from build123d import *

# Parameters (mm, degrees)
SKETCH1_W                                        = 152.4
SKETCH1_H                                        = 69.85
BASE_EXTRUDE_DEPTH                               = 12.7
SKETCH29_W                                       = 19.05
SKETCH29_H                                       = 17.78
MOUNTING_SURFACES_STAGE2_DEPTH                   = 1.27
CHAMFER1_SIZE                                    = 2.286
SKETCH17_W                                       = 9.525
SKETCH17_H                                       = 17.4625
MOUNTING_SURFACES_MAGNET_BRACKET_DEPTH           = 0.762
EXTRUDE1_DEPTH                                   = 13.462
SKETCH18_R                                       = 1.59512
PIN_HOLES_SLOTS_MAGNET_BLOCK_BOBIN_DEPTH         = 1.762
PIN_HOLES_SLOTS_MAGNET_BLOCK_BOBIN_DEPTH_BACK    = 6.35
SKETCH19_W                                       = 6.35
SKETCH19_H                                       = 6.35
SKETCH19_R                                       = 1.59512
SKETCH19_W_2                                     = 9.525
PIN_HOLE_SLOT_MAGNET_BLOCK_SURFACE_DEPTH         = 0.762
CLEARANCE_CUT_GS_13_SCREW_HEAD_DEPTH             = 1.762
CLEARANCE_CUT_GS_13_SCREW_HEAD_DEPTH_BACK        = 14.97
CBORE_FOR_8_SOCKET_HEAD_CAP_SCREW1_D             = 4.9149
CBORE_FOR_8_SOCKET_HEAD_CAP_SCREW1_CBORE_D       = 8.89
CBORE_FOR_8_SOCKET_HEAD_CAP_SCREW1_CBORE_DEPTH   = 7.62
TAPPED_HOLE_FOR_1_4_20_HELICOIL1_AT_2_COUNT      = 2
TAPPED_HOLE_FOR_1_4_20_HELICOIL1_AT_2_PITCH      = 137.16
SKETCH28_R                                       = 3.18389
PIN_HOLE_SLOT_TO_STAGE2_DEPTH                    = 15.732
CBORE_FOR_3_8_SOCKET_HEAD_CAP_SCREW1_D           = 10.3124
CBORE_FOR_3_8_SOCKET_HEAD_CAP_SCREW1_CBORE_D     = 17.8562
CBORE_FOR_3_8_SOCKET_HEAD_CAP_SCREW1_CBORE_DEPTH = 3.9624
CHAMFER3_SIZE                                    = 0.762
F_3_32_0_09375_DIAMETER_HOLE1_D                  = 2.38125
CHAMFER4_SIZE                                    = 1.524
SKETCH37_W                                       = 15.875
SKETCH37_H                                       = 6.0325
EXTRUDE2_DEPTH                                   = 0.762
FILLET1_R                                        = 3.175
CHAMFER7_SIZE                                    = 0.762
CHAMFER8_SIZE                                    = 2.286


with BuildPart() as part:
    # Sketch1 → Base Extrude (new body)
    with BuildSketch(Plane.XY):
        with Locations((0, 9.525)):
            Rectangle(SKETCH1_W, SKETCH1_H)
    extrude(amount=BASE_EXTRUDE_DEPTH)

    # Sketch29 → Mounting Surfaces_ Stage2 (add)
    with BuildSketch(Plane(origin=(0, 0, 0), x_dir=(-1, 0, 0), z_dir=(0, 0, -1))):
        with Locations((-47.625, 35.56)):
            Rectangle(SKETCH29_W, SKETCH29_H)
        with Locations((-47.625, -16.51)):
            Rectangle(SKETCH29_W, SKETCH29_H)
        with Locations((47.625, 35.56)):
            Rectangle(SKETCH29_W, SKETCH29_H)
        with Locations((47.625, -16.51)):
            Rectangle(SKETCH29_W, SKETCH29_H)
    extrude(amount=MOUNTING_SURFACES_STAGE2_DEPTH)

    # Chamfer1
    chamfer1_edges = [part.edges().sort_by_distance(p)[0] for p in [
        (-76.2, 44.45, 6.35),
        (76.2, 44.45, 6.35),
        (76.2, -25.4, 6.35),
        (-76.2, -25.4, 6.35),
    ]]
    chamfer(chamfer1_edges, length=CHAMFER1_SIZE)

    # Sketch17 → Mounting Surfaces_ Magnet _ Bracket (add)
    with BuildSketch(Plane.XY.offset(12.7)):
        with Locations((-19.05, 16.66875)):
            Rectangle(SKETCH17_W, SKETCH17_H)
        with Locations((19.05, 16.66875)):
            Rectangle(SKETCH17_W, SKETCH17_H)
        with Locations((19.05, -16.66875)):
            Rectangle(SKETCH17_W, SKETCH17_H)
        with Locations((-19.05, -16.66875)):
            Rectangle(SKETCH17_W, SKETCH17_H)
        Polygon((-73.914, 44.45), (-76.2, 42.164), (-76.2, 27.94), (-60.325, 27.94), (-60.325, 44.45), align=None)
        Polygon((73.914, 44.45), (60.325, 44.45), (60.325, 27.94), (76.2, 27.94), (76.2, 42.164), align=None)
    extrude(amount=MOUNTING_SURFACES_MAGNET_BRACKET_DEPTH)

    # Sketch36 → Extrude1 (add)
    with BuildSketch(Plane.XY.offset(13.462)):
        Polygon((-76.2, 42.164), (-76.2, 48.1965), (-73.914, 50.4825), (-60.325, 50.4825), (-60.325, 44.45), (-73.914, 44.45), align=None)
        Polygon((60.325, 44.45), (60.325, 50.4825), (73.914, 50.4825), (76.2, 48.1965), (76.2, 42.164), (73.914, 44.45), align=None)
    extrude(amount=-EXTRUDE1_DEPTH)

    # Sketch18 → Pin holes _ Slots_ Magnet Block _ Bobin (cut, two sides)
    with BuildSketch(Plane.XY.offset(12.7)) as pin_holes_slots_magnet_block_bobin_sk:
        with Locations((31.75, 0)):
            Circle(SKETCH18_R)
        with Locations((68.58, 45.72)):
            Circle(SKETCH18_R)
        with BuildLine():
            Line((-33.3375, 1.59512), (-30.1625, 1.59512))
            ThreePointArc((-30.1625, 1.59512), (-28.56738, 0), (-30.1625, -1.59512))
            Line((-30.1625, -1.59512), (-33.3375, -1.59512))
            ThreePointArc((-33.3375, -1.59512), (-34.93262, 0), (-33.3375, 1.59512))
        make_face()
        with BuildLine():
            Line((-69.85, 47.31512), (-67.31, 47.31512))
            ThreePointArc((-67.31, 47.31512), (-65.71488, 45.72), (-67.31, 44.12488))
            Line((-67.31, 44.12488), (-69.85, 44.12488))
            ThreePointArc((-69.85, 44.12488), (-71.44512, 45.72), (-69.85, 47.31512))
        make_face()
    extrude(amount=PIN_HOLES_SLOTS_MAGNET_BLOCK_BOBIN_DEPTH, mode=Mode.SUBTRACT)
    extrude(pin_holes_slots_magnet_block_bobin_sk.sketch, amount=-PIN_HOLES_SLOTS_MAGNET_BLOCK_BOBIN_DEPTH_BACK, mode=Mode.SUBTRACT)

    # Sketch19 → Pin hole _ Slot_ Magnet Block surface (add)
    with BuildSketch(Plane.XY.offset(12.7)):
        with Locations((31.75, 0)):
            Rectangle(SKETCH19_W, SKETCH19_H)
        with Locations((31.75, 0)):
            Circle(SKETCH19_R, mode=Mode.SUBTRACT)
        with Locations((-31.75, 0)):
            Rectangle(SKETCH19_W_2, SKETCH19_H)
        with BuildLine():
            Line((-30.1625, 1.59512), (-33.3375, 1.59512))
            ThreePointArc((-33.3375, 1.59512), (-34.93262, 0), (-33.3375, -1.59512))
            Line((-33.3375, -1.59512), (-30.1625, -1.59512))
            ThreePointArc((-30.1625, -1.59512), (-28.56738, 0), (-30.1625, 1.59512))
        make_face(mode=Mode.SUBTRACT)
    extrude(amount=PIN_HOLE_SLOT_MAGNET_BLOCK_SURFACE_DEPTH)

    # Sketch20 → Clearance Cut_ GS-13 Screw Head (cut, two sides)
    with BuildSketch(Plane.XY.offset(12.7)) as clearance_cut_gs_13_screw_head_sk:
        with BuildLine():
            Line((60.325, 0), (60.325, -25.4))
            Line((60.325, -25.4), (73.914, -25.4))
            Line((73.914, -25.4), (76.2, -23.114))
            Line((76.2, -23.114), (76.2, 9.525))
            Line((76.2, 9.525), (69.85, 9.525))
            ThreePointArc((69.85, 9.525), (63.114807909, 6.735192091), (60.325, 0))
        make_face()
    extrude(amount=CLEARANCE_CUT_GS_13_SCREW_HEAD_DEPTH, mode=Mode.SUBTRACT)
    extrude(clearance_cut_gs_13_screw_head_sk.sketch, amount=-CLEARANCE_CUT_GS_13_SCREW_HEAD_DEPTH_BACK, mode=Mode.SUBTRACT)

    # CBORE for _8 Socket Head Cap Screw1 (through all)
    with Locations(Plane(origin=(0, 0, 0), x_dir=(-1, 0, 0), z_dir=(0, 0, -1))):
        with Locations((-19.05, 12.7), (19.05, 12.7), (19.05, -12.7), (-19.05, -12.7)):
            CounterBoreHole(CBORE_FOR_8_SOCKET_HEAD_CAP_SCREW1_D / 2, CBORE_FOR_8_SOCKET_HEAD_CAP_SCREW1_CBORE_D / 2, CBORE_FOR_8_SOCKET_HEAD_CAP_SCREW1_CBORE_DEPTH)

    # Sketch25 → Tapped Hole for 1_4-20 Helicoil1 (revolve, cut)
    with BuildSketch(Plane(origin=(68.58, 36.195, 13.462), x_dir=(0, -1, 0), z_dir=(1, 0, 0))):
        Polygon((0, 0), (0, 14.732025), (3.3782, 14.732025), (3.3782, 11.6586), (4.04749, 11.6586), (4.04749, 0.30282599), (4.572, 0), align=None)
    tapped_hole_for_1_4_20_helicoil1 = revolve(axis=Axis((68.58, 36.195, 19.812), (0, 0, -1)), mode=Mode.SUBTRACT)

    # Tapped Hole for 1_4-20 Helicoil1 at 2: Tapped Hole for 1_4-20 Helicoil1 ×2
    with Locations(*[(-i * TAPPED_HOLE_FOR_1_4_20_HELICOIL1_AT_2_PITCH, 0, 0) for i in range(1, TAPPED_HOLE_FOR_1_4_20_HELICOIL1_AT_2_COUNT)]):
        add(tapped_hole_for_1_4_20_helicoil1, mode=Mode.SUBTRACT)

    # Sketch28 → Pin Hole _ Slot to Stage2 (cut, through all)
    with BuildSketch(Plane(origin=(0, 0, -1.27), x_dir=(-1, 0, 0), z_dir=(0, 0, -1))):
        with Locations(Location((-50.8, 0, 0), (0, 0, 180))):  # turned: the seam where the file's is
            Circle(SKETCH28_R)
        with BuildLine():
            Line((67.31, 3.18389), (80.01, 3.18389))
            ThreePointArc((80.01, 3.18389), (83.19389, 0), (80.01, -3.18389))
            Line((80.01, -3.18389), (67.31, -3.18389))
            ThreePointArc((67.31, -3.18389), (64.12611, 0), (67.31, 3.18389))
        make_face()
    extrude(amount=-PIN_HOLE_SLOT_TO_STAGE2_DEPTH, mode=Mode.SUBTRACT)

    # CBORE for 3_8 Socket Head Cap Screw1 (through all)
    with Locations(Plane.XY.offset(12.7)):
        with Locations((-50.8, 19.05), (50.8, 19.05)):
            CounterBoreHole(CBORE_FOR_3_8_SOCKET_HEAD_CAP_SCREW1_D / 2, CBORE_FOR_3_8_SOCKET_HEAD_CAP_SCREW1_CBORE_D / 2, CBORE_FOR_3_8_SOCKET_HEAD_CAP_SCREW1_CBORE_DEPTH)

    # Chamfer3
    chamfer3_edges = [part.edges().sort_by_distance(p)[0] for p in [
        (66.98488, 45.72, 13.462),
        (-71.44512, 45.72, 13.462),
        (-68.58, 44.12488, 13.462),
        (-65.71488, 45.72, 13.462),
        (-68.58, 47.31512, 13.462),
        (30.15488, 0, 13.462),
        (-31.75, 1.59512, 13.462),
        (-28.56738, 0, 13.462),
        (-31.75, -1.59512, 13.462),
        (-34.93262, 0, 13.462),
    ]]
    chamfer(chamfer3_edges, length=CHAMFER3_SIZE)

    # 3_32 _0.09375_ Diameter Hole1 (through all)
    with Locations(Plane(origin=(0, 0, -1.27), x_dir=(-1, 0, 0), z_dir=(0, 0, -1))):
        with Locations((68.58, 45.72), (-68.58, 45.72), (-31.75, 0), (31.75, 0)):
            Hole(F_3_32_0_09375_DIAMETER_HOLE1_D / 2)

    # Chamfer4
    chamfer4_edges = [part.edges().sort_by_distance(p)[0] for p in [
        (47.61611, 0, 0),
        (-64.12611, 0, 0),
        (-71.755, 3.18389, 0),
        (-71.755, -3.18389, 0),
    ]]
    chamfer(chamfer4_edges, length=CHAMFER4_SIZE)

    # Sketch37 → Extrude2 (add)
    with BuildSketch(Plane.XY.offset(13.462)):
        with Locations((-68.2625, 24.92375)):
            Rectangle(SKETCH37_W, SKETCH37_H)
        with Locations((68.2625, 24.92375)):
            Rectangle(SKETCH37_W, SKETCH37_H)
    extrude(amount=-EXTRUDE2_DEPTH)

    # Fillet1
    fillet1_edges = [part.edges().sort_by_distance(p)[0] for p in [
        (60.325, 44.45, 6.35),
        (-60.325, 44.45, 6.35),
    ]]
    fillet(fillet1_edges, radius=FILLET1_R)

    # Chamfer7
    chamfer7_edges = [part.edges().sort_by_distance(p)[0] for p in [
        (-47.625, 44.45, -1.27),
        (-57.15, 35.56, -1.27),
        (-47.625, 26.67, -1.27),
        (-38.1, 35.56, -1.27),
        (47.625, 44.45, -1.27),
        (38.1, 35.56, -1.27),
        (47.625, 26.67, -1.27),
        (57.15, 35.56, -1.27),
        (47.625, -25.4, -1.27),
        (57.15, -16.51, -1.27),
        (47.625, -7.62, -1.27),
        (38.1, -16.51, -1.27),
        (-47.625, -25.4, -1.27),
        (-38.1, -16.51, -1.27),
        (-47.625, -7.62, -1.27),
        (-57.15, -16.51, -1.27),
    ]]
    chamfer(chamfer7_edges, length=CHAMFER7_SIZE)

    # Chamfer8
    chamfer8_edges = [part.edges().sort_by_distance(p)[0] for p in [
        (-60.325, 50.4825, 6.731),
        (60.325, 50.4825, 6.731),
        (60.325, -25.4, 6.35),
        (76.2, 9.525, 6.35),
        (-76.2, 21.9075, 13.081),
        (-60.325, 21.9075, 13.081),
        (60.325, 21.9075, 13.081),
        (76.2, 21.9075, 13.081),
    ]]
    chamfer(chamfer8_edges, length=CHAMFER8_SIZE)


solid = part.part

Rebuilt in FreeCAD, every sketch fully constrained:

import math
import FreeCAD as App
import Part
import Sketcher

V = App.Vector
Q = App.Units.Quantity


def edges_at(feature, points):
    """Names of the edges that pass closest to the given points."""
    edges = feature.Shape.Edges
    near = lambda p: min(range(len(edges)), key=lambda i: edges[i].distToShape(Part.Vertex(*p))[0])
    return sorted({f"Edge{near(p) + 1}" for p in points})

doc = App.newDocument("Part")
body = doc.addObject("PartDesign::Body", "Body")

# Sketch on XY plane
sketch1 = body.newObject("Sketcher::SketchObject", "Sketch")
sketch1.AttachmentSupport = (doc.getObject("XY_Plane"), [""])
sketch1.MapMode = "FlatFace"
sketch1.addGeometry([
    Part.LineSegment(V(-76, 44, 0), V(-76, -25, 0)),
    Part.LineSegment(V(-76, -25, 0), V(76, -25, 0)),
    Part.LineSegment(V(76, -25, 0), V(76, 44, 0)),
    Part.LineSegment(V(76, 44, 0), V(-76, 44, 0)),
], False)
sketch1.addConstraint([
    Sketcher.Constraint("Coincident", 0, 2, 1, 1),
    Sketcher.Constraint("Coincident", 1, 2, 2, 1),
    Sketcher.Constraint("Coincident", 2, 2, 3, 1),
    Sketcher.Constraint("Coincident", 3, 2, 0, 1),
    Sketcher.Constraint("Vertical", 0),
    Sketcher.Constraint("Horizontal", 1),
    Sketcher.Constraint("Vertical", 2),
    Sketcher.Constraint("Horizontal", 3),
    Sketcher.Constraint("DistanceX", 1, 1, 1, 2, Q("6 in")),
    Sketcher.Constraint("DistanceX", 0, 2, -1, 1, Q("3 in")),
    Sketcher.Constraint("DistanceY", 0, 2, -1, 1, Q("1 in")),
    Sketcher.Constraint("DistanceY", 0, 2, 0, 1, Q("2.75 in")),
])
pad1 = body.newObject("PartDesign::Pad", "Pad")
pad1.Profile = sketch1
pad1.Length = Q("0.5 in")

# Sketch on XY plane
sketch2 = body.newObject("Sketcher::SketchObject", "Sketch001")
sketch2.AttachmentSupport = (doc.getObject("XY_Plane"), [""])
sketch2.MapMode = "FlatFace"
sketch2.addGeometry([
    Part.LineSegment(V(57, 44, 0), V(57, 27, 0)),  # 0
    Part.LineSegment(V(57, 27, 0), V(38, 27, 0)),  # 1
    Part.LineSegment(V(38, 27, 0), V(38, 44, 0)),  # 2
    Part.LineSegment(V(38, 44, 0), V(57, 44, 0)),  # 3
    Part.LineSegment(V(57, -8, 0), V(57, -25, 0)),  # 4
    Part.LineSegment(V(57, -25, 0), V(38, -25, 0)),  # 5
    Part.LineSegment(V(38, -25, 0), V(38, -8, 0)),  # 6
    Part.LineSegment(V(38, -8, 0), V(57, -8, 0)),  # 7
    Part.LineSegment(V(-38, 44, 0), V(-38, 27, 0)),  # 8
    Part.LineSegment(V(-38, 27, 0), V(-57, 27, 0)),  # 9
    Part.LineSegment(V(-57, 27, 0), V(-57, 44, 0)),  # 10
    Part.LineSegment(V(-57, 44, 0), V(-38, 44, 0)),  # 11
    Part.LineSegment(V(-38, -8, 0), V(-38, -25, 0)),  # 12
    Part.LineSegment(V(-38, -25, 0), V(-57, -25, 0)),  # 13
    Part.LineSegment(V(-57, -25, 0), V(-57, -8, 0)),  # 14
    Part.LineSegment(V(-57, -8, 0), V(-38, -8, 0)),  # 15
], False)
sketch2.addConstraint([
    Sketcher.Constraint("Coincident", 0, 2, 1, 1),
    Sketcher.Constraint("Coincident", 1, 2, 2, 1),
    Sketcher.Constraint("Coincident", 2, 2, 3, 1),
    Sketcher.Constraint("Coincident", 3, 2, 0, 1),
    Sketcher.Constraint("Coincident", 4, 2, 5, 1),
    Sketcher.Constraint("Coincident", 5, 2, 6, 1),
    Sketcher.Constraint("Coincident", 6, 2, 7, 1),
    Sketcher.Constraint("Coincident", 7, 2, 4, 1),
    Sketcher.Constraint("Coincident", 8, 2, 9, 1),
    Sketcher.Constraint("Coincident", 9, 2, 10, 1),
    Sketcher.Constraint("Coincident", 10, 2, 11, 1),
    Sketcher.Constraint("Coincident", 11, 2, 8, 1),
    Sketcher.Constraint("Coincident", 12, 2, 13, 1),
    Sketcher.Constraint("Coincident", 13, 2, 14, 1),
    Sketcher.Constraint("Coincident", 14, 2, 15, 1),
    Sketcher.Constraint("Coincident", 15, 2, 12, 1),
    Sketcher.Constraint("Vertical", 0),
    Sketcher.Constraint("Horizontal", 1),
    Sketcher.Constraint("Vertical", 2),
    Sketcher.Constraint("Horizontal", 3),
    Sketcher.Constraint("Vertical", 4),
    Sketcher.Constraint("Horizontal", 5),
    Sketcher.Constraint("Vertical", 6),
    Sketcher.Constraint("Horizontal", 7),
    Sketcher.Constraint("Vertical", 8),
    Sketcher.Constraint("Horizontal", 9),
    Sketcher.Constraint("Vertical", 10),
    Sketcher.Constraint("Horizontal", 11),
    Sketcher.Constraint("Vertical", 12),
    Sketcher.Constraint("Horizontal", 13),
    Sketcher.Constraint("Vertical", 14),
    Sketcher.Constraint("Horizontal", 15),
    Sketcher.Constraint("Symmetric", 1, 2, 8, 2, -2),
    Sketcher.Constraint("Symmetric", 3, 2, 10, 2, -2),
    Sketcher.Constraint("Symmetric", 5, 2, 12, 2, -2),
    Sketcher.Constraint("Symmetric", 7, 2, 14, 2, -2),
    Sketcher.Constraint("Vertical", 3, 2, 4, 2),
    Sketcher.Constraint("Vertical", 2, 2, 5, 2),
    Sketcher.Constraint("Equal", 2, 4),
    Sketcher.Constraint("DistanceY", 0, 2, 0, 1, Q("0.7 in")),
    Sketcher.Constraint("DistanceY", 4, 2, -1, 1, Q("1 in")),
    Sketcher.Constraint("DistanceX", 8, 2, 1, 2, Q("3 in")),
    Sketcher.Constraint("DistanceX", 1, 2, 1, 1, Q("0.75 in")),
    Sketcher.Constraint("DistanceY", -1, 1, 0, 2, Q("1.05 in")),
])
pad2 = body.newObject("PartDesign::Pad", "Pad001")
pad2.Profile = sketch2
pad2.Length = Q("0.05 in")
pad2.Reversed = True
doc.recompute()

chamfer = body.newObject("PartDesign::Chamfer", "Chamfer")
chamfer.Base = (pad2, edges_at(pad2, [
    (-76.2, 44.45, 6.35),
    (76.2, 44.45, 6.35),
    (76.2, -25.4, 6.35),
    (-76.2, -25.4, 6.35),
]))
chamfer.Size = Q("0.09 in")

# Sketch on XY plane
sketch3 = body.newObject("Sketcher::SketchObject", "Sketch002")
sketch3.AttachmentSupport = (doc.getObject("XY_Plane"), [""])
sketch3.MapMode = "FlatFace"
sketch3.AttachmentOffset = App.Placement(V(0, 0, 0.5 * 25.4), App.Rotation())
sketch3.addGeometry([
    Part.LineSegment(V(-23.8, 25.4, 0), V(-23.8, 7.9, 0)),  # 0
    Part.LineSegment(V(-23.8, 7.9, 0), V(-14.3, 7.9, 0)),  # 1
    Part.LineSegment(V(-14.3, 7.9, 0), V(-14.3, 25.4, 0)),  # 2
    Part.LineSegment(V(-14.3, 25.4, 0), V(-23.8, 25.4, 0)),  # 3
    Part.LineSegment(V(14.3, 25.4, 0), V(14.3, 7.9, 0)),  # 4
    Part.LineSegment(V(14.3, 7.9, 0), V(23.8, 7.9, 0)),  # 5
    Part.LineSegment(V(23.8, 7.9, 0), V(23.8, 25.4, 0)),  # 6
    Part.LineSegment(V(23.8, 25.4, 0), V(14.3, 25.4, 0)),  # 7
    Part.LineSegment(V(14.3, -7.9, 0), V(14.3, -25.4, 0)),  # 8
    Part.LineSegment(V(14.3, -25.4, 0), V(23.8, -25.4, 0)),  # 9
    Part.LineSegment(V(23.8, -25.4, 0), V(23.8, -7.9, 0)),  # 10
    Part.LineSegment(V(23.8, -7.9, 0), V(14.3, -7.9, 0)),  # 11
    Part.LineSegment(V(-23.8, -7.9, 0), V(-23.8, -25.4, 0)),  # 12
    Part.LineSegment(V(-23.8, -25.4, 0), V(-14.3, -25.4, 0)),  # 13
    Part.LineSegment(V(-14.3, -25.4, 0), V(-14.3, -7.9, 0)),  # 14
    Part.LineSegment(V(-14.3, -7.9, 0), V(-23.8, -7.9, 0)),  # 15
    Part.LineSegment(V(-73.9, 44.5, 0), V(-76.2, 42.2, 0)),  # 16
    Part.LineSegment(V(-76.2, 42.2, 0), V(-76.2, 27.9, 0)),  # 17
    Part.LineSegment(V(-76.2, 27.9, 0), V(-60.3, 27.9, 0)),  # 18
    Part.LineSegment(V(-60.3, 27.9, 0), V(-60.3, 44.5, 0)),  # 19
    Part.LineSegment(V(-60.3, 44.5, 0), V(-73.9, 44.5, 0)),  # 20
    Part.LineSegment(V(73.9, 44.5, 0), V(60.3, 44.5, 0)),  # 21
    Part.LineSegment(V(60.3, 44.5, 0), V(60.3, 27.9, 0)),  # 22
    Part.LineSegment(V(60.3, 27.9, 0), V(76.2, 27.9, 0)),  # 23
    Part.LineSegment(V(76.2, 27.9, 0), V(76.2, 42.2, 0)),  # 24
    Part.LineSegment(V(76.2, 42.2, 0), V(73.9, 44.5, 0)),  # 25
], False)
sketch3.addConstraint([
    Sketcher.Constraint("Coincident", 0, 2, 1, 1),
    Sketcher.Constraint("Coincident", 1, 2, 2, 1),
    Sketcher.Constraint("Coincident", 2, 2, 3, 1),
    Sketcher.Constraint("Coincident", 3, 2, 0, 1),
    Sketcher.Constraint("Coincident", 4, 2, 5, 1),
    Sketcher.Constraint("Coincident", 5, 2, 6, 1),
    Sketcher.Constraint("Coincident", 6, 2, 7, 1),
    Sketcher.Constraint("Coincident", 7, 2, 4, 1),
    Sketcher.Constraint("Coincident", 8, 2, 9, 1),
    Sketcher.Constraint("Coincident", 9, 2, 10, 1),
    Sketcher.Constraint("Coincident", 10, 2, 11, 1),
    Sketcher.Constraint("Coincident", 11, 2, 8, 1),
    Sketcher.Constraint("Coincident", 12, 2, 13, 1),
    Sketcher.Constraint("Coincident", 13, 2, 14, 1),
    Sketcher.Constraint("Coincident", 14, 2, 15, 1),
    Sketcher.Constraint("Coincident", 15, 2, 12, 1),
    Sketcher.Constraint("Coincident", 16, 2, 17, 1),
    Sketcher.Constraint("Coincident", 17, 2, 18, 1),
    Sketcher.Constraint("Coincident", 18, 2, 19, 1),
    Sketcher.Constraint("Coincident", 19, 2, 20, 1),
    Sketcher.Constraint("Coincident", 20, 2, 16, 1),
    Sketcher.Constraint("Coincident", 21, 2, 22, 1),
    Sketcher.Constraint("Coincident", 22, 2, 23, 1),
    Sketcher.Constraint("Coincident", 23, 2, 24, 1),
    Sketcher.Constraint("Coincident", 24, 2, 25, 1),
    Sketcher.Constraint("Coincident", 25, 2, 21, 1),
    Sketcher.Constraint("Vertical", 0),
    Sketcher.Constraint("Horizontal", 1),
    Sketcher.Constraint("Vertical", 2),
    Sketcher.Constraint("Horizontal", 3),
    Sketcher.Constraint("Vertical", 4),
    Sketcher.Constraint("Horizontal", 5),
    Sketcher.Constraint("Vertical", 6),
    Sketcher.Constraint("Horizontal", 7),
    Sketcher.Constraint("Vertical", 8),
    Sketcher.Constraint("Horizontal", 9),
    Sketcher.Constraint("Vertical", 10),
    Sketcher.Constraint("Horizontal", 11),
    Sketcher.Constraint("Vertical", 12),
    Sketcher.Constraint("Horizontal", 13),
    Sketcher.Constraint("Vertical", 14),
    Sketcher.Constraint("Horizontal", 15),
    Sketcher.Constraint("Vertical", 17),
    Sketcher.Constraint("Horizontal", 18),
    Sketcher.Constraint("Vertical", 19),
    Sketcher.Constraint("Horizontal", 20),
    Sketcher.Constraint("Horizontal", 21),
    Sketcher.Constraint("Vertical", 22),
    Sketcher.Constraint("Horizontal", 23),
    Sketcher.Constraint("Vertical", 24),
    Sketcher.Constraint("Symmetric", 2, 2, 8, 2, -1, 1),
    Sketcher.Constraint("Symmetric", 0, 2, 10, 2, -1, 1),
    Sketcher.Constraint("Symmetric", 6, 2, 12, 2, -1, 1),
    Sketcher.Constraint("Symmetric", 4, 2, 14, 2, -1, 1),
    Sketcher.Constraint("Symmetric", 1, 2, 4, 2, -2),
    Sketcher.Constraint("Symmetric", 3, 2, 6, 2, -2),
    Sketcher.Constraint("Symmetric", 19, 2, 21, 2, -2),
    Sketcher.Constraint("Symmetric", 17, 2, 23, 2, -2),
    Sketcher.Constraint("Perpendicular", 16, 25),
    Sketcher.Constraint("Horizontal", 16, 2, 24, 2),
    Sketcher.Constraint("Equal", 20, 21),
    Sketcher.Constraint("DistanceY", -1, 1, 2, 2, Q("1 in")),
    Sketcher.Constraint("DistanceX", 16, 2, -1, 1, Q("3 in")),
    Sketcher.Constraint("DistanceY", 17, 2, 17, 1, Q("0.56 in")),
    Sketcher.Constraint("DistanceY", 19, 1, 19, 2, Q("0.65 in")),
    Sketcher.Constraint("DistanceY", -1, 1, 17, 2, Q("1.1 in")),
    Sketcher.Constraint("DistanceX", 0, 2, 4, 2, Q("1.5 in")),
    Sketcher.Constraint("DistanceX", 1, 1, 1, 2, Q("0.375 in")),
    Sketcher.Constraint("DistanceX", 18, 1, 18, 2, Q("0.625 in")),
    Sketcher.Constraint("DistanceY", 0, 2, 0, 1, Q("0.6875 in")),
])
pad3 = body.newObject("PartDesign::Pad", "Pad002")
pad3.Profile = sketch3
pad3.Length = Q("0.03 in")

# Sketch on XY plane
sketch4 = body.newObject("Sketcher::SketchObject", "Sketch003")
sketch4.AttachmentSupport = (doc.getObject("XY_Plane"), [""])
sketch4.MapMode = "FlatFace"
sketch4.AttachmentOffset = App.Placement(V(0, 0, 0.53 * 25.4), App.Rotation())
sketch4.addGeometry([
    Part.LineSegment(V(-76.2, 48.2, 0), V(-76.2, 42.2, 0)),  # 0
    Part.LineSegment(V(-76.2, 42.2, 0), V(-73.9, 44.5, 0)),  # 1
    Part.LineSegment(V(-73.9, 44.5, 0), V(-60.3, 44.5, 0)),  # 2
    Part.LineSegment(V(-60.3, 44.5, 0), V(-60.3, 50.5, 0)),  # 3
    Part.LineSegment(V(-60.3, 50.5, 0), V(-73.9, 50.5, 0)),  # 4
    Part.LineSegment(V(-73.9, 50.5, 0), V(-76.2, 48.2, 0)),  # 5
    Part.LineSegment(V(60.3, 50.5, 0), V(60.3, 44.5, 0)),  # 6
    Part.LineSegment(V(60.3, 44.5, 0), V(73.9, 44.5, 0)),  # 7
    Part.LineSegment(V(73.9, 44.5, 0), V(76.2, 42.2, 0)),  # 8
    Part.LineSegment(V(76.2, 42.2, 0), V(76.2, 48.2, 0)),  # 9
    Part.LineSegment(V(76.2, 48.2, 0), V(73.9, 50.5, 0)),  # 10
    Part.LineSegment(V(73.9, 50.5, 0), V(60.3, 50.5, 0)),  # 11
], False)
sketch4.addConstraint([
    Sketcher.Constraint("Coincident", 0, 2, 1, 1),
    Sketcher.Constraint("Coincident", 1, 2, 2, 1),
    Sketcher.Constraint("Coincident", 2, 2, 3, 1),
    Sketcher.Constraint("Coincident", 3, 2, 4, 1),
    Sketcher.Constraint("Coincident", 4, 2, 5, 1),
    Sketcher.Constraint("Coincident", 5, 2, 0, 1),
    Sketcher.Constraint("Coincident", 6, 2, 7, 1),
    Sketcher.Constraint("Coincident", 7, 2, 8, 1),
    Sketcher.Constraint("Coincident", 8, 2, 9, 1),
    Sketcher.Constraint("Coincident", 9, 2, 10, 1),
    Sketcher.Constraint("Coincident", 10, 2, 11, 1),
    Sketcher.Constraint("Coincident", 11, 2, 6, 1),
    Sketcher.Constraint("Vertical", 0),
    Sketcher.Constraint("Horizontal", 2),
    Sketcher.Constraint("Vertical", 3),
    Sketcher.Constraint("Horizontal", 4),
    Sketcher.Constraint("Vertical", 6),
    Sketcher.Constraint("Horizontal", 7),
    Sketcher.Constraint("Vertical", 9),
    Sketcher.Constraint("Horizontal", 11),
    Sketcher.Constraint("Symmetric", 2, 2, 6, 2, -2),
    Sketcher.Constraint("Symmetric", 0, 2, 8, 2, -2),
    Sketcher.Constraint("Symmetric", 4, 2, 10, 2, -2),
    Sketcher.Constraint("Parallel", 1, 5),
    Sketcher.Constraint("Perpendicular", 5, 8),
    Sketcher.Constraint("Parallel", 8, 10),
    Sketcher.Constraint("Horizontal", 5, 2, 9, 2),
    Sketcher.Constraint("Vertical", 1, 2, 4, 2),
    Sketcher.Constraint("DistanceX", 0, 2, -1, 1, Q("3 in")),
    Sketcher.Constraint("DistanceX", 2, 1, 2, 2, Q("0.535 in")),
    Sketcher.Constraint("DistanceY", -1, 1, 0, 2, Q("1.66 in")),
    Sketcher.Constraint("DistanceX", 1, 2, -1, 1, Q("2.91 in")),
    Sketcher.Constraint("DistanceY", 0, 2, 0, 1, Q("0.2375 in")),
])
pad4 = body.newObject("PartDesign::Pad", "Pad003")
pad4.Profile = sketch4
pad4.Length = Q("0.53 in")
pad4.Reversed = True

# Sketch on XY plane
sketch5 = body.newObject("Sketcher::SketchObject", "Sketch004")
sketch5.AttachmentSupport = (doc.getObject("XY_Plane"), [""])
sketch5.MapMode = "FlatFace"
sketch5.AttachmentOffset = App.Placement(V(0, 0, 0.5 * 25.4), App.Rotation())
sketch5.addGeometry([
    Part.Circle(V(31.8, 0, 0), V(0, 0, 1), 1.6),  # 0
    Part.Circle(V(68.6, 45.7, 0), V(0, 0, 1), 1.6),  # 1
    Part.LineSegment(V(-30.2, 1.6, 0), V(-33.3, 1.6, 0)),  # 2
    Part.ArcOfCircle(Part.Circle(V(-33.3, 0, 0), V(0, 0, 1), 1.6), math.radians(90), math.radians(270)),  # 3
    Part.LineSegment(V(-33.3, -1.6, 0), V(-30.2, -1.6, 0)),  # 4
    Part.ArcOfCircle(Part.Circle(V(-30.2, 0, 0), V(0, 0, 1), 1.6), math.radians(-90), math.radians(90)),  # 5
    Part.LineSegment(V(-67.3, 47.3, 0), V(-69.8, 47.3, 0)),  # 6
    Part.ArcOfCircle(Part.Circle(V(-69.8, 45.7, 0), V(0, 0, 1), 1.6), math.radians(90), math.radians(270)),  # 7
    Part.LineSegment(V(-69.8, 44.1, 0), V(-67.3, 44.1, 0)),  # 8
    Part.ArcOfCircle(Part.Circle(V(-67.3, 45.7, 0), V(0, 0, 1), 1.6), math.radians(-90), math.radians(90)),  # 9
], False)
sketch5.addConstraint([
    Sketcher.Constraint("Tangent", 2, 2, 3, 1),
    Sketcher.Constraint("Tangent", 3, 2, 4, 1),
    Sketcher.Constraint("Tangent", 4, 2, 5, 1),
    Sketcher.Constraint("Tangent", 5, 2, 2, 1),
    Sketcher.Constraint("Tangent", 6, 2, 7, 1),
    Sketcher.Constraint("Tangent", 7, 2, 8, 1),
    Sketcher.Constraint("Tangent", 8, 2, 9, 1),
    Sketcher.Constraint("Tangent", 9, 2, 6, 1),
    Sketcher.Constraint("Horizontal", 2),
    Sketcher.Constraint("Horizontal", 4),
    Sketcher.Constraint("Horizontal", 6),
    Sketcher.Constraint("Horizontal", 8),
    Sketcher.Constraint("Equal", 0, 1),
    Sketcher.Constraint("Equal", 1, 3),
    Sketcher.Constraint("Equal", 5, 7),
    Sketcher.Constraint("PointOnObject", 0, 3, -1),
    Sketcher.Constraint("PointOnObject", 3, 3, -1),
    Sketcher.Constraint("Horizontal", 1, 3, 7, 3),
    Sketcher.Constraint("DistanceX", 6, 2, 6, 1, Q("0.1 in")),
    Sketcher.Constraint("DistanceX", 7, 3, 0, 3, Q("4 in")),
    Sketcher.Constraint("Diameter", 0, Q("0.1256 in")),
    Sketcher.Constraint("DistanceX", -1, 1, 1, 3, Q("2.7 in")),
    Sketcher.Constraint("DistanceY", -1, 1, 1, 3, Q("1.8 in")),
    Sketcher.Constraint("DistanceX", 2, 2, 2, 1, Q("0.125 in")),
    Sketcher.Constraint("DistanceX", -1, 1, 0, 3, Q("1.25 in")),
    Sketcher.Constraint("DistanceX", 3, 3, -1, 1, Q("1.3125 in")),
])
pocket1 = body.newObject("PartDesign::Pocket", "Pocket")
pocket1.Profile = sketch5
pocket1.Type = "TwoLengths"
pocket1.Length = 1.762
pocket1.Length2 = Q("0.25 in")
pocket1.Reversed = True

# Sketch on XY plane
sketch6 = body.newObject("Sketcher::SketchObject", "Sketch005")
sketch6.AttachmentSupport = (doc.getObject("XY_Plane"), [""])
sketch6.MapMode = "FlatFace"
sketch6.AttachmentOffset = App.Placement(V(0, 0, 0.5 * 25.4), App.Rotation())
sketch6.addGeometry([
    Part.LineSegment(V(28.6, 3.2, 0), V(28.6, -3.2, 0)),  # 0
    Part.LineSegment(V(28.6, -3.2, 0), V(34.9, -3.2, 0)),  # 1
    Part.LineSegment(V(34.9, -3.2, 0), V(34.9, 3.2, 0)),  # 2
    Part.LineSegment(V(34.9, 3.2, 0), V(28.6, 3.2, 0)),  # 3
    Part.Circle(V(31.8, 0, 0), V(0, 0, 1), 1.6),  # 4
    Part.LineSegment(V(-36.5, 3.2, 0), V(-36.5, -3.2, 0)),  # 5
    Part.LineSegment(V(-36.5, -3.2, 0), V(-27, -3.2, 0)),  # 6
    Part.LineSegment(V(-27, -3.2, 0), V(-27, 3.2, 0)),  # 7
    Part.LineSegment(V(-27, 3.2, 0), V(-36.5, 3.2, 0)),  # 8
    Part.LineSegment(V(-33.3, 1.6, 0), V(-30.2, 1.6, 0)),  # 9
    Part.ArcOfCircle(Part.Circle(V(-30.2, 0, 0), V(0, 0, 1), 1.6), math.radians(-90), math.radians(90)),  # 10
    Part.LineSegment(V(-30.2, -1.6, 0), V(-33.3, -1.6, 0)),  # 11
    Part.ArcOfCircle(Part.Circle(V(-33.3, 0, 0), V(0, 0, 1), 1.6), math.radians(90), math.radians(270)),  # 12
], False)
sketch6.addConstraint([
    Sketcher.Constraint("Coincident", 0, 2, 1, 1),
    Sketcher.Constraint("Coincident", 1, 2, 2, 1),
    Sketcher.Constraint("Coincident", 2, 2, 3, 1),
    Sketcher.Constraint("Coincident", 3, 2, 0, 1),
    Sketcher.Constraint("Coincident", 5, 2, 6, 1),
    Sketcher.Constraint("Coincident", 6, 2, 7, 1),
    Sketcher.Constraint("Coincident", 7, 2, 8, 1),
    Sketcher.Constraint("Coincident", 8, 2, 5, 1),
    Sketcher.Constraint("Tangent", 9, 2, 10, 2),
    Sketcher.Constraint("Tangent", 10, 1, 11, 1),
    Sketcher.Constraint("Tangent", 11, 2, 12, 2),
    Sketcher.Constraint("Tangent", 12, 1, 9, 1),
    Sketcher.Constraint("Vertical", 0),
    Sketcher.Constraint("Horizontal", 1),
    Sketcher.Constraint("Vertical", 2),
    Sketcher.Constraint("Horizontal", 3),
    Sketcher.Constraint("Vertical", 5),
    Sketcher.Constraint("Horizontal", 6),
    Sketcher.Constraint("Vertical", 7),
    Sketcher.Constraint("Horizontal", 8),
    Sketcher.Constraint("Horizontal", 9),
    Sketcher.Constraint("Horizontal", 11),
    Sketcher.Constraint("Equal", 4, 10),
    Sketcher.Constraint("PointOnObject", 4, 3, -1),
    Sketcher.Constraint("PointOnObject", 10, 3, -1),
    Sketcher.Constraint("Horizontal", 1, 2, 5, 2),
    Sketcher.Constraint("Horizontal", 3, 2, 7, 2),
    Sketcher.Constraint("Equal", 3, 0),
    Sketcher.Constraint("Diameter", 4, Q("0.1256 in")),
    Sketcher.Constraint("DistanceX", 1, 1, 1, 2, Q("0.25 in")),
    Sketcher.Constraint("DistanceX", 6, 1, 6, 2, Q("0.375 in")),
    Sketcher.Constraint("DistanceX", 9, 1, 9, 2, Q("0.125 in")),
    Sketcher.Constraint("DistanceX", -1, 1, 4, 3, Q("1.25 in")),
    Sketcher.Constraint("DistanceX", 5, 2, 10, 3, Q("0.25 in")),
    Sketcher.Constraint("DistanceX", 10, 3, -1, 1, Q("1.1875 in")),
    Sketcher.Constraint("DistanceX", -1, 1, 0, 2, Q("1.125 in")),
    Sketcher.Constraint("DistanceY", 0, 2, -1, 1, Q("0.125 in")),
])
pad5 = body.newObject("PartDesign::Pad", "Pad004")
pad5.Profile = sketch6
pad5.Length = Q("0.03 in")

# Sketch on XY plane
sketch7 = body.newObject("Sketcher::SketchObject", "Sketch006")
sketch7.AttachmentSupport = (doc.getObject("XY_Plane"), [""])
sketch7.MapMode = "FlatFace"
sketch7.AttachmentOffset = App.Placement(V(0, 0, 0.5 * 25.4), App.Rotation())
sketch7.addGeometry([
    Part.LineSegment(V(60.3, 0, 0), V(60.3, -25.4, 0)),  # 0
    Part.LineSegment(V(60.3, -25.4, 0), V(73.9, -25.4, 0)),  # 1
    Part.LineSegment(V(73.9, -25.4, 0), V(76.2, -23.1, 0)),  # 2
    Part.LineSegment(V(76.2, -23.1, 0), V(76.2, 9.5, 0)),  # 3
    Part.LineSegment(V(76.2, 9.5, 0), V(69.8, 9.5, 0)),  # 4
    Part.ArcOfCircle(Part.Circle(V(69.8, 0, 0), V(0, 0, 1), 9.5), math.radians(90), math.radians(180)),  # 5
], False)
sketch7.addConstraint([
    Sketcher.Constraint("Coincident", 0, 2, 1, 1),
    Sketcher.Constraint("Coincident", 1, 2, 2, 1),
    Sketcher.Constraint("Coincident", 2, 2, 3, 1),
    Sketcher.Constraint("Coincident", 3, 2, 4, 1),
    Sketcher.Constraint("Tangent", 4, 2, 5, 1),
    Sketcher.Constraint("Tangent", 5, 2, 0, 1),
    Sketcher.Constraint("Vertical", 0),
    Sketcher.Constraint("Horizontal", 1),
    Sketcher.Constraint("Vertical", 3),
    Sketcher.Constraint("Horizontal", 4),
    Sketcher.Constraint("PointOnObject", 5, 3, -1),
    Sketcher.Constraint("DistanceY", 0, 2, 0, 1, Q("1 in")),
    Sketcher.Constraint("DistanceX", -1, 1, 2, 2, Q("3 in")),
    Sketcher.Constraint("Angle", 2, Q("45 deg")),
    Sketcher.Constraint("Radius", 5, Q("0.375 in")),
    Sketcher.Constraint("DistanceX", 4, 2, 4, 1, Q("0.25 in")),
    Sketcher.Constraint("DistanceX", 1, 1, 1, 2, Q("0.535 in")),
])
pocket2 = body.newObject("PartDesign::Pocket", "Pocket001")
pocket2.Profile = sketch7
pocket2.Type = "ThroughAll"
pocket2.Midplane = True

# Sketch on XY plane
sketch8 = body.newObject("Sketcher::SketchObject", "Sketch007")
sketch8.AttachmentSupport = (doc.getObject("XY_Plane"), [""])
sketch8.MapMode = "FlatFace"
sketch8.addGeometry([
    Part.Circle(V(19.1, 12.7, 0), V(0, 0, 1), 2.5),
    Part.Circle(V(-19.1, 12.7, 0), V(0, 0, 1), 2.5),
    Part.Circle(V(-19.1, -12.7, 0), V(0, 0, 1), 2.5),
    Part.Circle(V(19.1, -12.7, 0), V(0, 0, 1), 2.5),
], False)
sketch8.addConstraint([
    Sketcher.Constraint("Equal", 0, 1),
    Sketcher.Constraint("Equal", 1, 2),
    Sketcher.Constraint("Equal", 2, 3),
    Sketcher.Constraint("Symmetric", 0, 3, 2, 3, -1, 1),
    Sketcher.Constraint("Symmetric", 1, 3, 3, 3, -1, 1),
    Sketcher.Constraint("Symmetric", 0, 3, 1, 3, -2),
    Sketcher.Constraint("DistanceY", 2, 3, 1, 3, Q("1 in")),
    Sketcher.Constraint("Diameter", 0, Q("0.1935 in")),
    Sketcher.Constraint("DistanceX", 1, 3, 0, 3, Q("1.5 in")),
])
doc.recompute()
hole = body.newObject("PartDesign::Hole", "Hole")
hole.Profile = sketch8
hole.ThreadType = "None"
hole.Diameter = Q("0.1935 in")
hole.DepthType = "ThroughAll"
hole.HoleCutType = "Counterbore"
hole.HoleCutDiameter = Q("0.35 in")
hole.HoleCutDepth = Q("0.3 in")
hole.Reversed = True

# Sketch on YZ plane
sketch9 = body.newObject("Sketcher::SketchObject", "Sketch008")
sketch9.AttachmentSupport = (doc.getObject("YZ_Plane"), [""])
sketch9.MapMode = "FlatFace"
sketch9.AttachmentOffset = App.Placement(V(0, 0, 2.7 * 25.4), App.Rotation())
sketch9.addGeometry([
    Part.LineSegment(V(36.2, -1.3, 0), V(36.2, 13.5, 0)),  # 0
    Part.LineSegment(V(36.2, 13.5, 0), V(31.6, 13.5, 0)),  # 1
    Part.LineSegment(V(31.6, 13.5, 0), V(32.1, 13.2, 0)),  # 2
    Part.LineSegment(V(32.1, 13.2, 0), V(32.1, 1.8, 0)),  # 3
    Part.LineSegment(V(32.1, 1.8, 0), V(32.8, 1.8, 0)),  # 4
    Part.LineSegment(V(32.8, 1.8, 0), V(32.8, -1.3, 0)),  # 5
    Part.LineSegment(V(32.8, -1.3, 0), V(36.2, -1.3, 0)),  # 6
], False)
sketch9.addGeometry(Part.LineSegment(V(36.2, 13.5, 0), V(36.2, -1.3, 0)), True)  # axis
sketch9.addConstraint([
    Sketcher.Constraint("Coincident", 0, 2, 1, 1),
    Sketcher.Constraint("Coincident", 1, 2, 2, 1),
    Sketcher.Constraint("Coincident", 2, 2, 3, 1),
    Sketcher.Constraint("Coincident", 3, 2, 4, 1),
    Sketcher.Constraint("Coincident", 4, 2, 5, 1),
    Sketcher.Constraint("Coincident", 5, 2, 6, 1),
    Sketcher.Constraint("Coincident", 6, 2, 0, 1),
    Sketcher.Constraint("Vertical", 0),
    Sketcher.Constraint("Horizontal", 1),
    Sketcher.Constraint("Vertical", 3),
    Sketcher.Constraint("Horizontal", 4),
    Sketcher.Constraint("Vertical", 5),
    Sketcher.Constraint("Horizontal", 6),
    Sketcher.Constraint("Vertical", 7),
    Sketcher.Constraint("Coincident", 7, 1, 0, 2),
    Sketcher.Constraint("Horizontal", 5, 2, 7, 2),
    Sketcher.Constraint("Angle", 2, Q("-30 deg")),
    Sketcher.Constraint("DistanceX", 1, 2, 1, 1, Q("0.18 in")),
    Sketcher.Constraint("DistanceX", 6, 1, 6, 2, Q("0.133 in")),
    Sketcher.Constraint("DistanceY", -1, 1, 0, 2, Q("0.53 in")),
    Sketcher.Constraint("DistanceX", -1, 1, 0, 2, Q("1.425 in")),
    Sketcher.Constraint("DistanceY", -1, 1, 3, 2, Q("0.071 in")),
    Sketcher.Constraint("DistanceX", 4, 1, 4, 2, 0.66929),
    Sketcher.Constraint("DistanceY", 5, 2, 2, 2, 14.429199),
])
groove = body.newObject("PartDesign::Groove", "Groove")
groove.Profile = sketch9
groove.ReferenceAxis = (sketch9, ["Axis0"])
groove.Angle = 360
doc.recompute()

linearpattern = body.newObject("PartDesign::LinearPattern", "LinearPattern")
linearpattern.Originals = [groove]
linearpattern.Direction = (doc.getObject("X_Axis"), [""])
linearpattern.Mode = "offset"
linearpattern.Offset = Q("5.4 in")
linearpattern.Occurrences = 2
linearpattern.Reversed = True
body.Tip = linearpattern

# Sketch on XY plane
sketch10 = body.newObject("Sketcher::SketchObject", "Sketch009")
sketch10.AttachmentSupport = (doc.getObject("XY_Plane"), [""])
sketch10.MapMode = "FlatFace"
sketch10.AttachmentOffset = App.Placement(V(0, 0, -0.05 * 25.4), App.Rotation())
sketch10.addGeometry([
    Part.Circle(V(50.8, 0, 0), V(0, 0, 1), 3.2),  # 0
    Part.LineSegment(V(-80, 3.2, 0), V(-67.3, 3.2, 0)),  # 1
    Part.ArcOfCircle(Part.Circle(V(-67.3, 0, 0), V(0, 0, 1), 3.2), math.radians(-90), math.radians(90)),  # 2
    Part.LineSegment(V(-67.3, -3.2, 0), V(-80, -3.2, 0)),  # 3
    Part.ArcOfCircle(Part.Circle(V(-80, 0, 0), V(0, 0, 1), 3.2), math.radians(90), math.radians(270)),  # 4
], False)
sketch10.addConstraint([
    Sketcher.Constraint("Tangent", 1, 2, 2, 2),
    Sketcher.Constraint("Tangent", 2, 1, 3, 1),
    Sketcher.Constraint("Tangent", 3, 2, 4, 2),
    Sketcher.Constraint("Tangent", 4, 1, 1, 1),
    Sketcher.Constraint("Horizontal", 1),
    Sketcher.Constraint("Horizontal", 3),
    Sketcher.Constraint("Equal", 0, 2),
    Sketcher.Constraint("PointOnObject", 0, 3, -1),
    Sketcher.Constraint("PointOnObject", 2, 3, -1),
    Sketcher.Constraint("DistanceX", 1, 1, 1, 2, Q("0.5 in")),
    Sketcher.Constraint("DistanceX", -1, 1, 0, 3, Q("2 in")),
    Sketcher.Constraint("Diameter", 0, Q("0.2507 in")),
    Sketcher.Constraint("DistanceX", 2, 3, -1, 1, Q("2.65 in")),
])
pocket3 = body.newObject("PartDesign::Pocket", "Pocket002")
pocket3.Profile = sketch10
pocket3.Type = "ThroughAll"
pocket3.Reversed = True

# Sketch on XY plane
sketch11 = body.newObject("Sketcher::SketchObject", "Sketch010")
sketch11.AttachmentSupport = (doc.getObject("XY_Plane"), [""])
sketch11.MapMode = "FlatFace"
sketch11.AttachmentOffset = App.Placement(V(0, 0, 0.5 * 25.4), App.Rotation())
sketch11.addGeometry([
    Part.Circle(V(-51, 19, 0), V(0, 0, 1), 5),
    Part.Circle(V(51, 19, 0), V(0, 0, 1), 5),
], False)
sketch11.addConstraint([
    Sketcher.Constraint("Equal", 0, 1),
    Sketcher.Constraint("Symmetric", 0, 3, 1, 3, -2),
    Sketcher.Constraint("Diameter", 0, Q("0.406 in")),
    Sketcher.Constraint("DistanceX", 0, 3, -1, 1, Q("2 in")),
    Sketcher.Constraint("DistanceY", -1, 1, 0, 3, Q("0.75 in")),
])
doc.recompute()
hole2 = body.newObject("PartDesign::Hole", "Hole001")
hole2.Profile = sketch11
hole2.ThreadType = "None"
hole2.Diameter = Q("0.406 in")
hole2.DepthType = "ThroughAll"
hole2.HoleCutType = "Counterbore"
hole2.HoleCutDiameter = Q("0.703 in")
hole2.HoleCutDepth = Q("0.156 in")
doc.recompute()

chamfer2 = body.newObject("PartDesign::Chamfer", "Chamfer001")
chamfer2.Base = (hole2, edges_at(hole2, [
    (66.985, 45.72, 13.462),
    (-71.445, 45.72, 13.462),
    (-68.58, 44.125, 13.462),
    (-65.715, 45.72, 13.462),
    (-68.58, 47.315, 13.462),
    (30.155, 0, 13.462),
    (-31.75, 1.595, 13.462),
    (-28.567, 0, 13.462),
    (-31.75, -1.595, 13.462),
    (-34.933, 0, 13.462),
]))
chamfer2.Size = Q("0.03 in")

# Sketch on XY plane
sketch12 = body.newObject("Sketcher::SketchObject", "Sketch011")
sketch12.AttachmentSupport = (doc.getObject("XY_Plane"), [""])
sketch12.MapMode = "FlatFace"
sketch12.AttachmentOffset = App.Placement(V(0, 0, -0.05 * 25.4), App.Rotation())
sketch12.addGeometry([
    Part.Circle(V(-68.6, 45.7, 0), V(0, 0, 1), 1.2),
    Part.Circle(V(68.6, 45.7, 0), V(0, 0, 1), 1.2),
    Part.Circle(V(31.8, 0, 0), V(0, 0, 1), 1.2),
    Part.Circle(V(-31.8, 0, 0), V(0, 0, 1), 1.2),
], False)
sketch12.addConstraint([
    Sketcher.Constraint("Equal", 0, 1),
    Sketcher.Constraint("Equal", 1, 2),
    Sketcher.Constraint("Equal", 2, 3),
    Sketcher.Constraint("Symmetric", 2, 3, 3, 3, -1, 1),
    Sketcher.Constraint("Symmetric", 0, 3, 1, 3, -2),
    Sketcher.Constraint("PointOnObject", 2, 3, -1),
    Sketcher.Constraint("Diameter", 0, Q("0.09375 in")),
    Sketcher.Constraint("DistanceX", 0, 3, -1, 1, Q("2.7 in")),
    Sketcher.Constraint("DistanceY", -1, 1, 0, 3, Q("1.8 in")),
    Sketcher.Constraint("DistanceX", 3, 3, 2, 3, Q("2.5 in")),
])
doc.recompute()
hole3 = body.newObject("PartDesign::Hole", "Hole002")
hole3.Profile = sketch12
hole3.ThreadType = "None"
hole3.Diameter = Q("0.09375 in")
hole3.DepthType = "ThroughAll"
hole3.Reversed = True
doc.recompute()

chamfer3 = body.newObject("PartDesign::Chamfer", "Chamfer002")
chamfer3.Base = (hole3, edges_at(hole3, [
    (47.616, 0, 0),
    (-64.126, 0, 0),
    (-71.755, 3.184, 0),
    (-71.755, -3.184, 0),
]))
chamfer3.Size = Q("0.06 in")

# Sketch on XY plane
sketch13 = body.newObject("Sketcher::SketchObject", "Sketch012")
sketch13.AttachmentSupport = (doc.getObject("XY_Plane"), [""])
sketch13.MapMode = "FlatFace"
sketch13.AttachmentOffset = App.Placement(V(0, 0, 0.53 * 25.4), App.Rotation())
sketch13.addGeometry([
    Part.LineSegment(V(-76, 28, 0), V(-76, 22, 0)),  # 0
    Part.LineSegment(V(-76, 22, 0), V(-60, 22, 0)),  # 1
    Part.LineSegment(V(-60, 22, 0), V(-60, 28, 0)),  # 2
    Part.LineSegment(V(-60, 28, 0), V(-76, 28, 0)),  # 3
    Part.LineSegment(V(60, 28, 0), V(60, 22, 0)),  # 4
    Part.LineSegment(V(60, 22, 0), V(76, 22, 0)),  # 5
    Part.LineSegment(V(76, 22, 0), V(76, 28, 0)),  # 6
    Part.LineSegment(V(76, 28, 0), V(60, 28, 0)),  # 7
], False)
sketch13.addConstraint([
    Sketcher.Constraint("Coincident", 0, 2, 1, 1),
    Sketcher.Constraint("Coincident", 1, 2, 2, 1),
    Sketcher.Constraint("Coincident", 2, 2, 3, 1),
    Sketcher.Constraint("Coincident", 3, 2, 0, 1),
    Sketcher.Constraint("Coincident", 4, 2, 5, 1),
    Sketcher.Constraint("Coincident", 5, 2, 6, 1),
    Sketcher.Constraint("Coincident", 6, 2, 7, 1),
    Sketcher.Constraint("Coincident", 7, 2, 4, 1),
    Sketcher.Constraint("Vertical", 0),
    Sketcher.Constraint("Horizontal", 1),
    Sketcher.Constraint("Vertical", 2),
    Sketcher.Constraint("Horizontal", 3),
    Sketcher.Constraint("Vertical", 4),
    Sketcher.Constraint("Horizontal", 5),
    Sketcher.Constraint("Vertical", 6),
    Sketcher.Constraint("Horizontal", 7),
    Sketcher.Constraint("Symmetric", 1, 2, 4, 2, -2),
    Sketcher.Constraint("Symmetric", 3, 2, 6, 2, -2),
    Sketcher.Constraint("DistanceX", 0, 2, -1, 1, Q("3 in")),
    Sketcher.Constraint("DistanceY", -1, 1, 2, 2, Q("1.1 in")),
    Sketcher.Constraint("DistanceX", 1, 1, 1, 2, Q("0.625 in")),
    Sketcher.Constraint("DistanceY", 0, 2, 0, 1, Q("0.2375 in")),
])
pad6 = body.newObject("PartDesign::Pad", "Pad005")
pad6.Profile = sketch13
pad6.Length = Q("0.03 in")
pad6.Reversed = True
doc.recompute()

fillet = body.newObject("PartDesign::Fillet", "Fillet")
fillet.Base = (pad6, edges_at(pad6, [(60.325, 44.45, 6.35), (-60.325, 44.45, 6.35)]))
fillet.Radius = Q("0.125 in")
doc.recompute()

chamfer4 = body.newObject("PartDesign::Chamfer", "Chamfer003")
chamfer4.Base = (fillet, edges_at(fillet, [
    (-47.625, 44.45, -1.27),
    (-57.15, 35.56, -1.27),
    (-47.625, 26.67, -1.27),
    (-38.1, 35.56, -1.27),
    (47.625, 44.45, -1.27),
    (38.1, 35.56, -1.27),
    (47.625, 26.67, -1.27),
    (57.15, 35.56, -1.27),
    (47.625, -25.4, -1.27),
    (57.15, -16.51, -1.27),
    (47.625, -7.62, -1.27),
    (38.1, -16.51, -1.27),
    (-47.625, -25.4, -1.27),
    (-38.1, -16.51, -1.27),
    (-47.625, -7.62, -1.27),
    (-57.15, -16.51, -1.27),
]))
chamfer4.Size = Q("0.03 in")
doc.recompute()

chamfer5 = body.newObject("PartDesign::Chamfer", "Chamfer004")
chamfer5.Base = (chamfer4, edges_at(chamfer4, [
    (-60.325, 50.483, 6.731),
    (60.325, 50.483, 6.731),
    (60.325, -25.4, 6.35),
    (76.2, 9.525, 6.35),
    (-76.2, 21.907, 13.081),
    (-60.325, 21.907, 13.081),
    (60.325, 21.907, 13.081),
    (76.2, 21.907, 13.081),
]))
chamfer5.Size = Q("0.09 in")

doc.recompute()
